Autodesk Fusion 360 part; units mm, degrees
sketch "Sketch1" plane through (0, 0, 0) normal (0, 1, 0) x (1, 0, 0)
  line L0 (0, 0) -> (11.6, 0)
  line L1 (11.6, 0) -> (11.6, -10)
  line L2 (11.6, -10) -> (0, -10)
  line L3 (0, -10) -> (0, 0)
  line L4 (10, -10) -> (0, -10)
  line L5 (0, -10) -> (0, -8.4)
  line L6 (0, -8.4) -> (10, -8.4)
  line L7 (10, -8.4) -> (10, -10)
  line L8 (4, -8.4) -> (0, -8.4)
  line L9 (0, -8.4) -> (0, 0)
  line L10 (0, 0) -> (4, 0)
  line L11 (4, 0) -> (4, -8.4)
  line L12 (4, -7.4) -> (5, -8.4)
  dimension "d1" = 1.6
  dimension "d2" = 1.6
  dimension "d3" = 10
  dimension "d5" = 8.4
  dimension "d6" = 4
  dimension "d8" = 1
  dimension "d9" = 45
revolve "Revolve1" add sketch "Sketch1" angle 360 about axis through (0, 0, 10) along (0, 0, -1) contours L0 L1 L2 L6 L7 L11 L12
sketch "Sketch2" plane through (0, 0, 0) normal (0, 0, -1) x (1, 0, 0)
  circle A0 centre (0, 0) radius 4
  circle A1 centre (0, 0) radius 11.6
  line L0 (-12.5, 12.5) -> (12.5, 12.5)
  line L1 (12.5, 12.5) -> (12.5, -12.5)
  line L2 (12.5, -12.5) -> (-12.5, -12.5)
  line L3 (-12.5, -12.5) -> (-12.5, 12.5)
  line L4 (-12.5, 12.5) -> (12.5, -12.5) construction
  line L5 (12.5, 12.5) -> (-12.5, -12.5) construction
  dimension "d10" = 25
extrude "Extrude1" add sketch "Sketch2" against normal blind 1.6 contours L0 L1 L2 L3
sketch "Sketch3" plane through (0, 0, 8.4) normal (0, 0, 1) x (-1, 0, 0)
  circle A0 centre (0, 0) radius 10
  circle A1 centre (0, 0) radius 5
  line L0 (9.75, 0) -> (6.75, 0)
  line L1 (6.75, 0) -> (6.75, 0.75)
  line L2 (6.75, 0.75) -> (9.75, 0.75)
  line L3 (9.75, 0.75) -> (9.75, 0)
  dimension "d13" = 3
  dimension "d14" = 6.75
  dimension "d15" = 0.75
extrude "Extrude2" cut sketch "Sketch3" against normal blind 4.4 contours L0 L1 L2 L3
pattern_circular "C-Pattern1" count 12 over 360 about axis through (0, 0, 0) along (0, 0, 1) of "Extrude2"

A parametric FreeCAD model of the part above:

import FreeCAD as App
import Part
import Sketcher
from FreeCAD import Vector
Q = App.Units.Quantity


def add_polygon(sketch, points):
    """Adds a closed chain of lines whose ends are joined by coincident constraints."""
    first, n = sketch.GeometryCount, len(points)
    for a, b in zip(points, points[1:] + points[:1]):
        sketch.addGeometry(Part.LineSegment(App.Vector(*a, 0), App.Vector(*b, 0)), False)
    for i in range(n):
        sketch.addConstraint(Sketcher.Constraint("Coincident", first + i, 2, first + (i + 1) % n, 1))

doc = App.newDocument("Part")
params = doc.addObject("Spreadsheet::Sheet", "Params")
for row, (alias, value) in enumerate([
    ("sketch1_height", "10 mm"),
    ("sketch1_width", "1.6 mm"),
    ("revolution_angle", "360 deg"),
    ("sketch2_width", "25 mm"),
    ("sketch2_diameter", "23.2 mm"),
    ("pad1_length", "1.6 mm"),
    ("sketch3_width", "3 mm"),
    ("sketch3_height", "0.75 mm"),
    ("pocket1_length", "4.4 mm"),
], start=1):
    params.set(f"A{row}", alias)
    params.set(f"B{row}", "=" + value)
    params.setAlias(f"B{row}", alias)

body = doc.addObject("PartDesign::Body", "Body")

sketch1 = doc.addObject("Sketcher::SketchObject", "Sketch")
body.addObject(sketch1)
sketch1.AttachmentSupport = (doc.XZ_Plane, [""])
sketch1.MapMode = "FlatFace"
add_polygon(sketch1, [(11.6, 0), (4, 0), (4, 7.4), (5, 8.4), (10, 8.4), (10, 10), (11.6, 10)])
sketch1.addConstraint([
    Sketcher.Constraint("Horizontal", 0),
    Sketcher.Constraint("Vertical", 1),
    Sketcher.Constraint("Horizontal", 3),
    Sketcher.Constraint("Vertical", 4),
    Sketcher.Constraint("Horizontal", 5),
    Sketcher.Constraint("Vertical", 6),
    Sketcher.Constraint("PointOnObject", 0, 2, -1),
    Sketcher.Constraint("Equal", 5, 4),
    Sketcher.Constraint("DistanceY", 6, 2, 6, 1, 10.0),
    Sketcher.Constraint("Angle", 2, Q("45 deg")),
    Sketcher.Constraint("DistanceX", 5, 1, 5, 2, 1.6),
    Sketcher.Constraint("DistanceX", -1, 1, 0, 2, 4.0),
    Sketcher.Constraint("DistanceX", -1, 1, 3, 2, 10.0),
    Sketcher.Constraint("DistanceX", 1, 2, 2, 2, 1.0),
])
sketch1.setExpression("Constraints[15]", "Params.sketch1_height")
sketch1.setExpression("Constraints[17]", "Params.sketch1_width")
revolution = doc.addObject("PartDesign::Revolution", "Revolution")
body.addObject(revolution)
revolution.Profile = sketch1
revolution.ReferenceAxis = (sketch1, ["V_Axis"])
revolution.setExpression("Angle", "Params.revolution_angle")

sketch2 = doc.addObject("Sketcher::SketchObject", "Sketch001")
body.addObject(sketch2)
sketch2.AttachmentSupport = (doc.XY_Plane, [""])
sketch2.MapMode = "FlatFace"
add_polygon(sketch2, [(12.5, -12.5), (-12.5, -12.5), (-12.5, 12.5), (12.5, 12.5)])
sketch2.addGeometry(Part.Circle(Vector(0, 0, 0), Vector(0, 0, 1), 11.6), False)
sketch2.addConstraint([
    Sketcher.Constraint("Horizontal", 0),
    Sketcher.Constraint("Vertical", 1),
    Sketcher.Constraint("Horizontal", 2),
    Sketcher.Constraint("Vertical", 3),
    Sketcher.Constraint("Coincident", 4, 3, -1, 1),
    Sketcher.Constraint("Symmetric", 0, 2, 2, 2, -1, 1),
    Sketcher.Constraint("Equal", 2, 1),
    Sketcher.Constraint("DistanceX", 0, 2, 0, 1, 25.0),
    Sketcher.Constraint("Diameter", 4, 23.2),
])
sketch2.setExpression("Constraints[11]", "Params.sketch2_width")
sketch2.setExpression("Constraints[12]", "Params.sketch2_diameter")
pad1 = doc.addObject("PartDesign::Pad", "Pad")
body.addObject(pad1)
pad1.Profile = sketch2
pad1.setExpression("Length", "Params.pad1_length")

sketch3 = doc.addObject("Sketcher::SketchObject", "Sketch002")
body.addObject(sketch3)
sketch3.AttachmentSupport = (doc.XY_Plane, [""])
sketch3.MapMode = "FlatFace"
sketch3.AttachmentOffset = App.Placement(Vector(0, 0, 8.4), App.Rotation())
add_polygon(sketch3, [(-6.75, 0), (-9.75, 0), (-9.75, -0.75), (-6.75, -0.75)])
sketch3.addConstraint([
    Sketcher.Constraint("Horizontal", 0),
    Sketcher.Constraint("Vertical", 1),
    Sketcher.Constraint("Horizontal", 2),
    Sketcher.Constraint("Vertical", 3),
    Sketcher.Constraint("PointOnObject", 0, 2, -1),
    Sketcher.Constraint("DistanceX", 0, 2, 0, 1, 3.0),
    Sketcher.Constraint("DistanceY", 1, 2, 1, 1, 0.75),
    Sketcher.Constraint("DistanceX", 2, 2, -1, 1, 6.75),
])
sketch3.setExpression("Constraints[9]", "Params.sketch3_width")
sketch3.setExpression("Constraints[10]", "Params.sketch3_height")
pocket1 = doc.addObject("PartDesign::Pocket", "Pocket")
body.addObject(pocket1)
pocket1.Profile = sketch3
pocket1.setExpression("Length", "Params.pocket1_length")
doc.recompute()

polarpattern = doc.addObject("PartDesign::PolarPattern", "PolarPattern")
body.addObject(polarpattern)
polarpattern.Originals = [pocket1]
polarpattern.Axis = (doc.Z_Axis, [""])
polarpattern.Angle = 360
polarpattern.Occurrences = 12
body.Tip = polarpattern

doc.recompute()
